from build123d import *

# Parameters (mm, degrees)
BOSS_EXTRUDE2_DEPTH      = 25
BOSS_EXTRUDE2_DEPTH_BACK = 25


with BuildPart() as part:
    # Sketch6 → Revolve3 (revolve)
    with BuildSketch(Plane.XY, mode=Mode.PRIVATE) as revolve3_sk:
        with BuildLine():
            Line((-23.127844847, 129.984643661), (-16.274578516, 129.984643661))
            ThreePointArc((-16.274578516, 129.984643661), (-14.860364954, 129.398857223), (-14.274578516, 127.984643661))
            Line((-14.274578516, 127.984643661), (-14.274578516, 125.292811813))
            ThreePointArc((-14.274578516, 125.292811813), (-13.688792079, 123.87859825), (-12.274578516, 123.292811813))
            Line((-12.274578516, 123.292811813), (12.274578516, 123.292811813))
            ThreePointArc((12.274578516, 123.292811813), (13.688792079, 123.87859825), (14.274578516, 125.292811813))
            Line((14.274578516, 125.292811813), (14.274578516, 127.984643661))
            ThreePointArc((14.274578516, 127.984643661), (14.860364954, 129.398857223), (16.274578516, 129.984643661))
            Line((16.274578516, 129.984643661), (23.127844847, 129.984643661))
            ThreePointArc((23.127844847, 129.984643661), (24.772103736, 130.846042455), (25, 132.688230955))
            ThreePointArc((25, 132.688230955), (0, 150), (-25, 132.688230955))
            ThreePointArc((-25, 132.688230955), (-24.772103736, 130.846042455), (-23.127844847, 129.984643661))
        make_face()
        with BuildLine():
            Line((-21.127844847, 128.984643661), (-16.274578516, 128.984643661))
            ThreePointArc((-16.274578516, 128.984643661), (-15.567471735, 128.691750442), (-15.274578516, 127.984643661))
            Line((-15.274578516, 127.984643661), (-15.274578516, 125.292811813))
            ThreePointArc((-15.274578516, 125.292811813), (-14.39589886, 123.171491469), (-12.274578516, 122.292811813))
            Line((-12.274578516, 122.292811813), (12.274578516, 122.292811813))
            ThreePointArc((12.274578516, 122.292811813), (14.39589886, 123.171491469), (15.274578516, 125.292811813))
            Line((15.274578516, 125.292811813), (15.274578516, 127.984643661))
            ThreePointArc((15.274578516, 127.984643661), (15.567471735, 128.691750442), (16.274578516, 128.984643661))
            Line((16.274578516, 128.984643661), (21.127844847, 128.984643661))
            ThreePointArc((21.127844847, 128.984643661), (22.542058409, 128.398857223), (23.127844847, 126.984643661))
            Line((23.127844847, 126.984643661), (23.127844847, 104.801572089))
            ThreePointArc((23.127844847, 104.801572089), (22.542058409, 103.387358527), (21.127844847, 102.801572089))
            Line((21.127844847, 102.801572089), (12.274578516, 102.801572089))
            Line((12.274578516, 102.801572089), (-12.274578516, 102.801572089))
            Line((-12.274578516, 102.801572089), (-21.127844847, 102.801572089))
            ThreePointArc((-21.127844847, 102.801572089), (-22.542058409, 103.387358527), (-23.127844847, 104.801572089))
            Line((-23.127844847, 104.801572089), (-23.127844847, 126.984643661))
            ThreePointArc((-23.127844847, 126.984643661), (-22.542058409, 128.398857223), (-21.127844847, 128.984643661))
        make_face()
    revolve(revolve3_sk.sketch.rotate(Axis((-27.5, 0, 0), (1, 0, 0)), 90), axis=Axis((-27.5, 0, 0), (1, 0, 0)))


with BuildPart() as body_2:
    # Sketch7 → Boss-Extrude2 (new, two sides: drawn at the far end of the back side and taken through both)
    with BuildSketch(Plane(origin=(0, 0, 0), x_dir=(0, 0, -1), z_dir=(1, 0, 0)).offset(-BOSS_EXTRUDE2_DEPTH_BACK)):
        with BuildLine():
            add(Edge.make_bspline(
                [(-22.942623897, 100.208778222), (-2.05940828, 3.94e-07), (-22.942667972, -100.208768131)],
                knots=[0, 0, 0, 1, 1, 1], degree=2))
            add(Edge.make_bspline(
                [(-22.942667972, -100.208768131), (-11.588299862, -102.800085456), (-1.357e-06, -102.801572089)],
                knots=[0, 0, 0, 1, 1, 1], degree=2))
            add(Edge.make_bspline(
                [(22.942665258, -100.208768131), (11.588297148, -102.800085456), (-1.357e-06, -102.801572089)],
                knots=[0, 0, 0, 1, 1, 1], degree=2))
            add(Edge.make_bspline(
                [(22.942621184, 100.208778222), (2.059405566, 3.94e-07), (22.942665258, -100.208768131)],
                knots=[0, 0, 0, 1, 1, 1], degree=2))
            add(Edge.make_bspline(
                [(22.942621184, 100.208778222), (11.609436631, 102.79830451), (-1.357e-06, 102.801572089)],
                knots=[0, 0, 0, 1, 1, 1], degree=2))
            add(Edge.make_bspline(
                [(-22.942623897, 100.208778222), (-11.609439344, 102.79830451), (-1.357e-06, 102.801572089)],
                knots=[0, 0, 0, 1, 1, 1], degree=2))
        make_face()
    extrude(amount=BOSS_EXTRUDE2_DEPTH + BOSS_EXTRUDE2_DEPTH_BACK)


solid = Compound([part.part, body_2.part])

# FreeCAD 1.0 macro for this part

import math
import FreeCAD as App
import Part
import Sketcher
Q = App.Units.Quantity

doc = App.newDocument("Part")
params = doc.addObject("Spreadsheet::Sheet", "Params")
for row, (alias, value) in enumerate([
    ("sketch1_radius", "2 mm"),
    ("sketch1_radius2", "1 mm"),
    ("revolution_angle", "360 deg"),
    ("pad1_length", "25 mm"),
    ("pad1_length2", "25 mm"),
], start=1):
    params.set(f"A{row}", alias)
    params.set(f"B{row}", "=" + value)
    params.setAlias(f"B{row}", alias)

body = doc.addObject("PartDesign::Body", "Body")
body.AllowCompound = True

# Sketch on XY plane
sketch1 = body.newObject("Sketcher::SketchObject", "Sketch")
sketch1.AttachmentSupport = (doc.getObject("XY_Plane"), [""])
sketch1.MapMode = "FlatFace"
sketch1.addGeometry(Part.LineSegment(App.Vector(-23.127845, 129.984644, 0), App.Vector(-16.274579, 129.984644, 0)), False)
sketch1.addGeometry(Part.ArcOfCircle(Part.Circle(App.Vector(-16.274579, 127.984644, 0), App.Vector(0, 0, 1), 2), math.radians(0), math.radians(90)), False)
sketch1.addGeometry(Part.LineSegment(App.Vector(-14.274579, 127.984644, 0), App.Vector(-14.274579, 125.292812, 0)), False)
sketch1.addGeometry(Part.ArcOfCircle(Part.Circle(App.Vector(-12.274579, 125.292812, 0), App.Vector(0, 0, 1), 2), math.radians(180), math.radians(270)), False)
sketch1.addGeometry(Part.LineSegment(App.Vector(-12.274579, 123.292812, 0), App.Vector(12.274579, 123.292812, 0)), False)
sketch1.addGeometry(Part.ArcOfCircle(Part.Circle(App.Vector(12.274579, 125.292812, 0), App.Vector(0, 0, 1), 2), math.radians(-90), math.radians(0)), False)
sketch1.addGeometry(Part.LineSegment(App.Vector(14.274579, 125.292812, 0), App.Vector(14.274579, 127.984644, 0)), False)
sketch1.addGeometry(Part.ArcOfCircle(Part.Circle(App.Vector(16.274579, 127.984644, 0), App.Vector(0, 0, 1), 2), math.radians(90), math.radians(180)), False)
sketch1.addGeometry(Part.LineSegment(App.Vector(16.274579, 129.984644, 0), App.Vector(23.127845, 129.984644, 0)), False)
sketch1.addGeometry(Part.ArcOfCircle(Part.Circle(App.Vector(23.127845, 131.984644, 0), App.Vector(0, 0, 1), 2), math.radians(-90), math.radians(20.597062)), False)
sketch1.addGeometry(Part.ArcOfCircle(Part.Circle(App.Vector(0, 123.292812, 0), App.Vector(0, 0, 1), 26.707188), math.radians(20.597062), math.radians(159.402938)), False)
sketch1.addGeometry(Part.ArcOfCircle(Part.Circle(App.Vector(-23.127845, 131.984644, 0), App.Vector(0, 0, 1), 2), math.radians(159.402938), math.radians(270)), False)
sketch1.addGeometry(Part.LineSegment(App.Vector(-16.274579, 128.984644, 0), App.Vector(-21.127845, 128.984644, 0)), False)
sketch1.addGeometry(Part.ArcOfCircle(Part.Circle(App.Vector(-21.127845, 126.984644, 0), App.Vector(0, 0, 1), 2), math.radians(90), math.radians(180)), False)
sketch1.addGeometry(Part.LineSegment(App.Vector(-23.127845, 126.984644, 0), App.Vector(-23.127845, 104.801572, 0)), False)
sketch1.addGeometry(Part.ArcOfCircle(Part.Circle(App.Vector(-21.127845, 104.801572, 0), App.Vector(0, 0, 1), 2), math.radians(-180), math.radians(-90)), False)
sketch1.addGeometry(Part.LineSegment(App.Vector(-21.127845, 102.801572, 0), App.Vector(21.127845, 102.801572, 0)), False)
sketch1.addGeometry(Part.ArcOfCircle(Part.Circle(App.Vector(21.127845, 104.801572, 0), App.Vector(0, 0, 1), 2), math.radians(-90), math.radians(0)), False)
sketch1.addGeometry(Part.LineSegment(App.Vector(23.127845, 104.801572, 0), App.Vector(23.127845, 126.984644, 0)), False)
sketch1.addGeometry(Part.ArcOfCircle(Part.Circle(App.Vector(21.127845, 126.984644, 0), App.Vector(0, 0, 1), 2), math.radians(0), math.radians(90)), False)
sketch1.addGeometry(Part.LineSegment(App.Vector(21.127845, 128.984644, 0), App.Vector(16.274579, 128.984644, 0)), False)
sketch1.addGeometry(Part.ArcOfCircle(Part.Circle(App.Vector(16.274579, 127.984644, 0), App.Vector(0, 0, 1), 1), math.radians(90), math.radians(180)), False)
sketch1.addGeometry(Part.LineSegment(App.Vector(15.274579, 127.984644, 0), App.Vector(15.274579, 125.292812, 0)), False)
sketch1.addGeometry(Part.ArcOfCircle(Part.Circle(App.Vector(12.274579, 125.292812, 0), App.Vector(0, 0, 1), 3), math.radians(-90), math.radians(0)), False)
sketch1.addGeometry(Part.LineSegment(App.Vector(12.274579, 122.292812, 0), App.Vector(-12.274579, 122.292812, 0)), False)
sketch1.addGeometry(Part.ArcOfCircle(Part.Circle(App.Vector(-12.274579, 125.292812, 0), App.Vector(0, 0, 1), 3), math.radians(180), math.radians(270)), False)
sketch1.addGeometry(Part.LineSegment(App.Vector(-15.274579, 125.292812, 0), App.Vector(-15.274579, 127.984644, 0)), False)
sketch1.addGeometry(Part.ArcOfCircle(Part.Circle(App.Vector(-16.274579, 127.984644, 0), App.Vector(0, 0, 1), 1), math.radians(0), math.radians(90)), False)
sketch1.addConstraint(Sketcher.Constraint("Tangent", 0, 2, 1, 2))
sketch1.addConstraint(Sketcher.Constraint("Tangent", 1, 1, 2, 1))
sketch1.addConstraint(Sketcher.Constraint("Tangent", 2, 2, 3, 1))
sketch1.addConstraint(Sketcher.Constraint("Tangent", 3, 2, 4, 1))
sketch1.addConstraint(Sketcher.Constraint("Tangent", 4, 2, 5, 1))
sketch1.addConstraint(Sketcher.Constraint("Tangent", 5, 2, 6, 1))
sketch1.addConstraint(Sketcher.Constraint("Tangent", 6, 2, 7, 2))
sketch1.addConstraint(Sketcher.Constraint("Tangent", 7, 1, 8, 1))
sketch1.addConstraint(Sketcher.Constraint("Tangent", 8, 2, 9, 1))
sketch1.addConstraint(Sketcher.Constraint("Tangent", 9, 2, 10, 1))
sketch1.addConstraint(Sketcher.Constraint("Tangent", 10, 2, 11, 1))
sketch1.addConstraint(Sketcher.Constraint("Tangent", 11, 2, 0, 1))
sketch1.addConstraint(Sketcher.Constraint("Tangent", 12, 2, 13, 1))
sketch1.addConstraint(Sketcher.Constraint("Tangent", 13, 2, 14, 1))
sketch1.addConstraint(Sketcher.Constraint("Tangent", 14, 2, 15, 1))
sketch1.addConstraint(Sketcher.Constraint("Tangent", 15, 2, 16, 1))
sketch1.addConstraint(Sketcher.Constraint("Tangent", 16, 2, 17, 1))
sketch1.addConstraint(Sketcher.Constraint("Tangent", 17, 2, 18, 1))
sketch1.addConstraint(Sketcher.Constraint("Tangent", 18, 2, 19, 1))
sketch1.addConstraint(Sketcher.Constraint("Tangent", 19, 2, 20, 1))
sketch1.addConstraint(Sketcher.Constraint("Tangent", 20, 2, 21, 1))
sketch1.addConstraint(Sketcher.Constraint("Tangent", 21, 2, 22, 1))
sketch1.addConstraint(Sketcher.Constraint("Tangent", 22, 2, 23, 2))
sketch1.addConstraint(Sketcher.Constraint("Tangent", 23, 1, 24, 1))
sketch1.addConstraint(Sketcher.Constraint("Tangent", 24, 2, 25, 2))
sketch1.addConstraint(Sketcher.Constraint("Tangent", 25, 1, 26, 1))
sketch1.addConstraint(Sketcher.Constraint("Tangent", 26, 2, 27, 1))
sketch1.addConstraint(Sketcher.Constraint("Tangent", 27, 2, 12, 1))
sketch1.addConstraint(Sketcher.Constraint("Horizontal", 0))
sketch1.addConstraint(Sketcher.Constraint("Vertical", 2))
sketch1.addConstraint(Sketcher.Constraint("Horizontal", 4))
sketch1.addConstraint(Sketcher.Constraint("Vertical", 6))
sketch1.addConstraint(Sketcher.Constraint("Horizontal", 8))
sketch1.addConstraint(Sketcher.Constraint("Horizontal", 12))
sketch1.addConstraint(Sketcher.Constraint("Vertical", 14))
sketch1.addConstraint(Sketcher.Constraint("Horizontal", 16))
sketch1.addConstraint(Sketcher.Constraint("Vertical", 18))
sketch1.addConstraint(Sketcher.Constraint("Horizontal", 20))
sketch1.addConstraint(Sketcher.Constraint("Vertical", 22))
sketch1.addConstraint(Sketcher.Constraint("Horizontal", 24))
sketch1.addConstraint(Sketcher.Constraint("Vertical", 26))
sketch1.addConstraint(Sketcher.Constraint("Coincident", 21, 3, 7, 3))
sketch1.addConstraint(Sketcher.Constraint("Coincident", 23, 3, 5, 3))
sketch1.addConstraint(Sketcher.Constraint("Coincident", 25, 3, 3, 3))
sketch1.addConstraint(Sketcher.Constraint("Coincident", 27, 3, 1, 3))
sketch1.addConstraint(Sketcher.Constraint("Equal", 1, 3))
sketch1.addConstraint(Sketcher.Constraint("Equal", 3, 5))
sketch1.addConstraint(Sketcher.Constraint("Equal", 5, 7))
sketch1.addConstraint(Sketcher.Constraint("Equal", 7, 9))
sketch1.addConstraint(Sketcher.Constraint("Equal", 9, 11))
sketch1.addConstraint(Sketcher.Constraint("Equal", 11, 13))
sketch1.addConstraint(Sketcher.Constraint("Equal", 13, 15))
sketch1.addConstraint(Sketcher.Constraint("Equal", 15, 17))
sketch1.addConstraint(Sketcher.Constraint("Equal", 17, 19))
sketch1.addConstraint(Sketcher.Constraint("Symmetric", 1, 3, 7, 3, -2))
sketch1.addConstraint(Sketcher.Constraint("PointOnObject", 10, 3, -2))
sketch1.addConstraint(Sketcher.Constraint("Horizontal", 10, 3, 3, 2))
sketch1.addConstraint(Sketcher.Constraint("Vertical", 11, 2, 13, 2))
sketch1.addConstraint(Sketcher.Constraint("Vertical", 8, 2, 17, 2))
sketch1.addConstraint(Sketcher.Constraint("Radius", 1, Q("2 mm")))
sketch1.addConstraint(Sketcher.Constraint("Radius", 21, Q("1 mm")))
sketch1.addConstraint(Sketcher.Constraint("DistanceX", -1, 1, 9, 2, Q("25 mm")))
sketch1.addConstraint(Sketcher.Constraint("Radius", 10, Q("26.707188 mm")))
sketch1.addConstraint(Sketcher.Constraint("DistanceY", 14, 2, 14, 1, Q("22.183072 mm")))
sketch1.addConstraint(Sketcher.Constraint("DistanceX", 0, 1, 0, 2, Q("6.853266 mm")))
sketch1.addConstraint(Sketcher.Constraint("DistanceY", -1, 1, 3, 3, Q("125.292812 mm")))
sketch1.setExpression("Constraints[59]", "Params.sketch1_radius")
sketch1.setExpression("Constraints[60]", "Params.sketch1_radius2")
revolution = body.newObject("PartDesign::Revolution", "Revolution")
revolution.Profile = sketch1
revolution.ReferenceAxis = (sketch1, ["H_Axis"])
revolution.setExpression("Angle", "Params.revolution_angle")
body2 = doc.addObject("PartDesign::Body", "Body001")

# Sketch on YZ plane
sketch2 = body2.newObject("Sketcher::SketchObject", "Sketch001")
sketch2.AttachmentSupport = (doc.getObject("YZ_Plane001"), [""])
sketch2.MapMode = "FlatFace"
sketch2.addGeometry(Part.BSplineCurve([App.Vector(100.208778, 22.942624, 0), App.Vector(0, 2.059408, 0), App.Vector(-100.208768, 22.942668, 0)], [3, 3], [0, 1], False, 2, [1, 1, 1], False), False)
sketch2.addGeometry(Part.BSplineCurve([App.Vector(-100.208768, 22.942668, 0), App.Vector(-102.800085, 11.5883, 0), App.Vector(-102.801572, 0.000001, 0)], [3, 3], [0, 1], False, 2, [1, 1, 1], False), False)
sketch2.addGeometry(Part.BSplineCurve([App.Vector(-100.208768, -22.942665, 0), App.Vector(-102.800085, -11.588297, 0), App.Vector(-102.801572, 0.000001, 0)], [3, 3], [0, 1], False, 2, [1, 1, 1], False), False)
sketch2.addGeometry(Part.BSplineCurve([App.Vector(100.208778, -22.942621, 0), App.Vector(0, -2.059406, 0), App.Vector(-100.208768, -22.942665, 0)], [3, 3], [0, 1], False, 2, [1, 1, 1], False), False)
sketch2.addGeometry(Part.BSplineCurve([App.Vector(100.208778, -22.942621, 0), App.Vector(102.798305, -11.609437, 0), App.Vector(102.801572, 0.000001, 0)], [3, 3], [0, 1], False, 2, [1, 1, 1], False), False)
sketch2.addGeometry(Part.BSplineCurve([App.Vector(100.208778, 22.942624, 0), App.Vector(102.798305, 11.609439, 0), App.Vector(102.801572, 0.000001, 0)], [3, 3], [0, 1], False, 2, [1, 1, 1], False), False)
sketch2.addConstraint(Sketcher.Constraint("Block", 0))
sketch2.addConstraint(Sketcher.Constraint("Block", 1))
sketch2.addConstraint(Sketcher.Constraint("Block", 2))
sketch2.addConstraint(Sketcher.Constraint("Block", 3))
sketch2.addConstraint(Sketcher.Constraint("Block", 4))
sketch2.addConstraint(Sketcher.Constraint("Block", 5))
pad1 = body2.newObject("PartDesign::Pad", "Pad")
pad1.Profile = sketch2
pad1.Type = "TwoLengths"
pad1.setExpression("Length", "Params.pad1_length")
pad1.setExpression("Length2", "Params.pad1_length2")

doc.recompute()
